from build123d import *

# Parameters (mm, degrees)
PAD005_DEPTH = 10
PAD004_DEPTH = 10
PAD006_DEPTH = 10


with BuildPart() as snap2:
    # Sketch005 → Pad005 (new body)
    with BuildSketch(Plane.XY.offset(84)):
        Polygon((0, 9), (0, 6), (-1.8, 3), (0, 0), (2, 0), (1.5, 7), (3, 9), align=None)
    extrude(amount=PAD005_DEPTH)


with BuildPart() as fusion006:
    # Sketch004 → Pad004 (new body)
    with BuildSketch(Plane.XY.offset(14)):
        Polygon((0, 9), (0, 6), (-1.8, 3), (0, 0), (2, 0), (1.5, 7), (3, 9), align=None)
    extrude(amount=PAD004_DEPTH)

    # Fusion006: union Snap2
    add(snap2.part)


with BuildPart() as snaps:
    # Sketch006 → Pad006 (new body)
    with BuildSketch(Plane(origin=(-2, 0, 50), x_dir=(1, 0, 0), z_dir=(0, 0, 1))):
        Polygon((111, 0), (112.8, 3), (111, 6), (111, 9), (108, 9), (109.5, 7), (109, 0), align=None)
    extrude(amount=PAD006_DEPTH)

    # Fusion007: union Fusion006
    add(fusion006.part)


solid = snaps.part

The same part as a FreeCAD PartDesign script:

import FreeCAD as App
import Part
import Sketcher
from FreeCAD import Vector
Q = App.Units.Quantity

doc = App.newDocument("Part")
body = doc.addObject("PartDesign::Body", "Body")

# Sketch on XY plane
sketch1 = body.newObject("Sketcher::SketchObject", "Sketch")
sketch1.AttachmentSupport = (doc.getObject("XY_Plane"), [""])
sketch1.MapMode = "FlatFace"
sketch1.AttachmentOffset = App.Placement(Vector(0, 0, 84), App.Rotation())
sketch1.addGeometry([
    Part.LineSegment(Vector(0, 9, 0), Vector(0, 6, 0)),  # 0
    Part.LineSegment(Vector(0, 6, 0), Vector(-1.8, 3, 0)),  # 1
    Part.LineSegment(Vector(-1.8, 3, 0), Vector(0, 0, 0)),  # 2
    Part.LineSegment(Vector(0, 0, 0), Vector(2, 0, 0)),  # 3
    Part.LineSegment(Vector(2, 0, 0), Vector(1.5, 7, 0)),  # 4
    Part.LineSegment(Vector(1.5, 7, 0), Vector(3, 9, 0)),  # 5
    Part.LineSegment(Vector(3, 9, 0), Vector(0, 9, 0)),  # 6
], False)
sketch1.addConstraint([
    Sketcher.Constraint("Coincident", 0, 2, 1, 1),
    Sketcher.Constraint("Coincident", 1, 2, 2, 1),
    Sketcher.Constraint("Coincident", 2, 2, 3, 1),
    Sketcher.Constraint("Coincident", 3, 2, 4, 1),
    Sketcher.Constraint("Coincident", 4, 2, 5, 1),
    Sketcher.Constraint("Coincident", 5, 2, 6, 1),
    Sketcher.Constraint("Coincident", 6, 2, 0, 1),
    Sketcher.Constraint("Vertical", 0),
    Sketcher.Constraint("Horizontal", 3),
    Sketcher.Constraint("Horizontal", 6),
    Sketcher.Constraint("Coincident", 2, 2, -1, 1),
    Sketcher.Constraint("PointOnObject", 0, 2, -2),
    Sketcher.Constraint("Equal", 6, 0),
    Sketcher.Constraint("Equal", 1, 2),
    Sketcher.Constraint("DistanceX", 3, 1, 3, 2, Q("2 mm")),
    Sketcher.Constraint("DistanceX", 6, 2, 6, 1, Q("3 mm")),
    Sketcher.Constraint("DistanceY", -1, 1, 0, 2, Q("6 mm")),
    Sketcher.Constraint("DistanceY", -1, 1, 4, 2, Q("7 mm")),
    Sketcher.Constraint("Distance", 5, Q("2.5 mm")),
    Sketcher.Constraint("DistanceX", 1, 2, -1, 1, Q("1.8 mm")),
])
pad1 = body.newObject("PartDesign::Pad", "Pad")
pad1.Profile = sketch1
pad1.Length = 10
body2 = doc.addObject("PartDesign::Body", "Body001")
body2.AllowCompound = True

# Sketch on XY plane
sketch2 = body2.newObject("Sketcher::SketchObject", "Sketch001")
sketch2.AttachmentSupport = (doc.getObject("XY_Plane001"), [""])
sketch2.MapMode = "FlatFace"
sketch2.AttachmentOffset = App.Placement(Vector(0, 0, 14), App.Rotation())
sketch2.addGeometry([
    Part.LineSegment(Vector(0, 9, 0), Vector(0, 6, 0)),  # 0
    Part.LineSegment(Vector(0, 6, 0), Vector(-1.8, 3, 0)),  # 1
    Part.LineSegment(Vector(-1.8, 3, 0), Vector(0, 0, 0)),  # 2
    Part.LineSegment(Vector(0, 0, 0), Vector(2, 0, 0)),  # 3
    Part.LineSegment(Vector(2, 0, 0), Vector(1.5, 7, 0)),  # 4
    Part.LineSegment(Vector(1.5, 7, 0), Vector(3, 9, 0)),  # 5
    Part.LineSegment(Vector(3, 9, 0), Vector(0, 9, 0)),  # 6
], False)
sketch2.addConstraint([
    Sketcher.Constraint("Coincident", 0, 2, 1, 1),
    Sketcher.Constraint("Coincident", 1, 2, 2, 1),
    Sketcher.Constraint("Coincident", 2, 2, 3, 1),
    Sketcher.Constraint("Coincident", 3, 2, 4, 1),
    Sketcher.Constraint("Coincident", 4, 2, 5, 1),
    Sketcher.Constraint("Coincident", 5, 2, 6, 1),
    Sketcher.Constraint("Coincident", 6, 2, 0, 1),
    Sketcher.Constraint("Vertical", 0),
    Sketcher.Constraint("Horizontal", 3),
    Sketcher.Constraint("Horizontal", 6),
    Sketcher.Constraint("Coincident", 2, 2, -1, 1),
    Sketcher.Constraint("PointOnObject", 0, 2, -2),
    Sketcher.Constraint("Equal", 6, 0),
    Sketcher.Constraint("Equal", 1, 2),
    Sketcher.Constraint("DistanceX", 3, 1, 3, 2, Q("2 mm")),
    Sketcher.Constraint("DistanceX", 6, 2, 6, 1, Q("3 mm")),
    Sketcher.Constraint("DistanceY", -1, 1, 0, 2, Q("6 mm")),
    Sketcher.Constraint("DistanceY", -1, 1, 4, 2, Q("7 mm")),
    Sketcher.Constraint("Distance", 5, Q("2.5 mm")),
    Sketcher.Constraint("DistanceX", 1, 2, -1, 1, Q("1.8 mm")),
])
pad2 = body2.newObject("PartDesign::Pad", "Pad001")
pad2.Profile = sketch2
pad2.Length = 10
doc.recompute()

boolean = body2.newObject("PartDesign::Boolean", "Boolean")
boolean.Type = "Fuse"
boolean.addObjects([body])
body3 = doc.addObject("PartDesign::Body", "Body002")
body3.AllowCompound = True

# Sketch on XY plane
sketch3 = body3.newObject("Sketcher::SketchObject", "Sketch002")
sketch3.AttachmentSupport = (doc.getObject("XY_Plane002"), [""])
sketch3.MapMode = "FlatFace"
sketch3.AttachmentOffset = App.Placement(Vector(0, 0, 50), App.Rotation())
sketch3.addGeometry([
    Part.LineSegment(Vector(109, 0, 0), Vector(110.8, 3, 0)),  # 0
    Part.LineSegment(Vector(110.8, 3, 0), Vector(109, 6, 0)),  # 1
    Part.LineSegment(Vector(109, 6, 0), Vector(109, 9, 0)),  # 2
    Part.LineSegment(Vector(109, 9, 0), Vector(106, 9, 0)),  # 3
    Part.LineSegment(Vector(106, 9, 0), Vector(107.5, 7, 0)),  # 4
    Part.LineSegment(Vector(107.5, 7, 0), Vector(107, 0, 0)),  # 5
    Part.LineSegment(Vector(107, 0, 0), Vector(109, 0, 0)),  # 6
], False)
sketch3.addConstraint([
    Sketcher.Constraint("Coincident", 0, 2, 1, 1),
    Sketcher.Constraint("Coincident", 1, 2, 2, 1),
    Sketcher.Constraint("Coincident", 2, 2, 3, 1),
    Sketcher.Constraint("Coincident", 3, 2, 4, 1),
    Sketcher.Constraint("Coincident", 4, 2, 5, 1),
    Sketcher.Constraint("Coincident", 5, 2, 6, 1),
    Sketcher.Constraint("Coincident", 6, 2, 0, 1),
    Sketcher.Constraint("Vertical", 2),
    Sketcher.Constraint("Horizontal", 3),
    Sketcher.Constraint("Horizontal", 6),
    Sketcher.Constraint("PointOnObject", 5, 2, -1),
    Sketcher.Constraint("Vertical", 2, 2, 6, 2),
    Sketcher.Constraint("Equal", 3, 2),
    Sketcher.Constraint("Equal", 0, 1),
    Sketcher.Constraint("DistanceX", 3, 2, 3, 1, Q("3 mm")),
    Sketcher.Constraint("DistanceX", 6, 1, 6, 2, Q("2 mm")),
    Sketcher.Constraint("DistanceY", -1, 1, 0, 2, Q("3 mm")),
    Sketcher.Constraint("DistanceX", -1, 1, 1, 2, Q("109 mm")),
    Sketcher.Constraint("DistanceY", -1, 1, 4, 2, Q("7 mm")),
    Sketcher.Constraint("Distance", 4, Q("2.5 mm")),
    Sketcher.Constraint("DistanceX", -1, 1, 0, 2, Q("110.8 mm")),
])
pad3 = body3.newObject("PartDesign::Pad", "Pad002")
pad3.Profile = sketch3
pad3.Length = 10
doc.recompute()

boolean2 = body3.newObject("PartDesign::Boolean", "Boolean001")
boolean2.Type = "Fuse"
boolean2.addObjects([body2])

doc.recompute()
